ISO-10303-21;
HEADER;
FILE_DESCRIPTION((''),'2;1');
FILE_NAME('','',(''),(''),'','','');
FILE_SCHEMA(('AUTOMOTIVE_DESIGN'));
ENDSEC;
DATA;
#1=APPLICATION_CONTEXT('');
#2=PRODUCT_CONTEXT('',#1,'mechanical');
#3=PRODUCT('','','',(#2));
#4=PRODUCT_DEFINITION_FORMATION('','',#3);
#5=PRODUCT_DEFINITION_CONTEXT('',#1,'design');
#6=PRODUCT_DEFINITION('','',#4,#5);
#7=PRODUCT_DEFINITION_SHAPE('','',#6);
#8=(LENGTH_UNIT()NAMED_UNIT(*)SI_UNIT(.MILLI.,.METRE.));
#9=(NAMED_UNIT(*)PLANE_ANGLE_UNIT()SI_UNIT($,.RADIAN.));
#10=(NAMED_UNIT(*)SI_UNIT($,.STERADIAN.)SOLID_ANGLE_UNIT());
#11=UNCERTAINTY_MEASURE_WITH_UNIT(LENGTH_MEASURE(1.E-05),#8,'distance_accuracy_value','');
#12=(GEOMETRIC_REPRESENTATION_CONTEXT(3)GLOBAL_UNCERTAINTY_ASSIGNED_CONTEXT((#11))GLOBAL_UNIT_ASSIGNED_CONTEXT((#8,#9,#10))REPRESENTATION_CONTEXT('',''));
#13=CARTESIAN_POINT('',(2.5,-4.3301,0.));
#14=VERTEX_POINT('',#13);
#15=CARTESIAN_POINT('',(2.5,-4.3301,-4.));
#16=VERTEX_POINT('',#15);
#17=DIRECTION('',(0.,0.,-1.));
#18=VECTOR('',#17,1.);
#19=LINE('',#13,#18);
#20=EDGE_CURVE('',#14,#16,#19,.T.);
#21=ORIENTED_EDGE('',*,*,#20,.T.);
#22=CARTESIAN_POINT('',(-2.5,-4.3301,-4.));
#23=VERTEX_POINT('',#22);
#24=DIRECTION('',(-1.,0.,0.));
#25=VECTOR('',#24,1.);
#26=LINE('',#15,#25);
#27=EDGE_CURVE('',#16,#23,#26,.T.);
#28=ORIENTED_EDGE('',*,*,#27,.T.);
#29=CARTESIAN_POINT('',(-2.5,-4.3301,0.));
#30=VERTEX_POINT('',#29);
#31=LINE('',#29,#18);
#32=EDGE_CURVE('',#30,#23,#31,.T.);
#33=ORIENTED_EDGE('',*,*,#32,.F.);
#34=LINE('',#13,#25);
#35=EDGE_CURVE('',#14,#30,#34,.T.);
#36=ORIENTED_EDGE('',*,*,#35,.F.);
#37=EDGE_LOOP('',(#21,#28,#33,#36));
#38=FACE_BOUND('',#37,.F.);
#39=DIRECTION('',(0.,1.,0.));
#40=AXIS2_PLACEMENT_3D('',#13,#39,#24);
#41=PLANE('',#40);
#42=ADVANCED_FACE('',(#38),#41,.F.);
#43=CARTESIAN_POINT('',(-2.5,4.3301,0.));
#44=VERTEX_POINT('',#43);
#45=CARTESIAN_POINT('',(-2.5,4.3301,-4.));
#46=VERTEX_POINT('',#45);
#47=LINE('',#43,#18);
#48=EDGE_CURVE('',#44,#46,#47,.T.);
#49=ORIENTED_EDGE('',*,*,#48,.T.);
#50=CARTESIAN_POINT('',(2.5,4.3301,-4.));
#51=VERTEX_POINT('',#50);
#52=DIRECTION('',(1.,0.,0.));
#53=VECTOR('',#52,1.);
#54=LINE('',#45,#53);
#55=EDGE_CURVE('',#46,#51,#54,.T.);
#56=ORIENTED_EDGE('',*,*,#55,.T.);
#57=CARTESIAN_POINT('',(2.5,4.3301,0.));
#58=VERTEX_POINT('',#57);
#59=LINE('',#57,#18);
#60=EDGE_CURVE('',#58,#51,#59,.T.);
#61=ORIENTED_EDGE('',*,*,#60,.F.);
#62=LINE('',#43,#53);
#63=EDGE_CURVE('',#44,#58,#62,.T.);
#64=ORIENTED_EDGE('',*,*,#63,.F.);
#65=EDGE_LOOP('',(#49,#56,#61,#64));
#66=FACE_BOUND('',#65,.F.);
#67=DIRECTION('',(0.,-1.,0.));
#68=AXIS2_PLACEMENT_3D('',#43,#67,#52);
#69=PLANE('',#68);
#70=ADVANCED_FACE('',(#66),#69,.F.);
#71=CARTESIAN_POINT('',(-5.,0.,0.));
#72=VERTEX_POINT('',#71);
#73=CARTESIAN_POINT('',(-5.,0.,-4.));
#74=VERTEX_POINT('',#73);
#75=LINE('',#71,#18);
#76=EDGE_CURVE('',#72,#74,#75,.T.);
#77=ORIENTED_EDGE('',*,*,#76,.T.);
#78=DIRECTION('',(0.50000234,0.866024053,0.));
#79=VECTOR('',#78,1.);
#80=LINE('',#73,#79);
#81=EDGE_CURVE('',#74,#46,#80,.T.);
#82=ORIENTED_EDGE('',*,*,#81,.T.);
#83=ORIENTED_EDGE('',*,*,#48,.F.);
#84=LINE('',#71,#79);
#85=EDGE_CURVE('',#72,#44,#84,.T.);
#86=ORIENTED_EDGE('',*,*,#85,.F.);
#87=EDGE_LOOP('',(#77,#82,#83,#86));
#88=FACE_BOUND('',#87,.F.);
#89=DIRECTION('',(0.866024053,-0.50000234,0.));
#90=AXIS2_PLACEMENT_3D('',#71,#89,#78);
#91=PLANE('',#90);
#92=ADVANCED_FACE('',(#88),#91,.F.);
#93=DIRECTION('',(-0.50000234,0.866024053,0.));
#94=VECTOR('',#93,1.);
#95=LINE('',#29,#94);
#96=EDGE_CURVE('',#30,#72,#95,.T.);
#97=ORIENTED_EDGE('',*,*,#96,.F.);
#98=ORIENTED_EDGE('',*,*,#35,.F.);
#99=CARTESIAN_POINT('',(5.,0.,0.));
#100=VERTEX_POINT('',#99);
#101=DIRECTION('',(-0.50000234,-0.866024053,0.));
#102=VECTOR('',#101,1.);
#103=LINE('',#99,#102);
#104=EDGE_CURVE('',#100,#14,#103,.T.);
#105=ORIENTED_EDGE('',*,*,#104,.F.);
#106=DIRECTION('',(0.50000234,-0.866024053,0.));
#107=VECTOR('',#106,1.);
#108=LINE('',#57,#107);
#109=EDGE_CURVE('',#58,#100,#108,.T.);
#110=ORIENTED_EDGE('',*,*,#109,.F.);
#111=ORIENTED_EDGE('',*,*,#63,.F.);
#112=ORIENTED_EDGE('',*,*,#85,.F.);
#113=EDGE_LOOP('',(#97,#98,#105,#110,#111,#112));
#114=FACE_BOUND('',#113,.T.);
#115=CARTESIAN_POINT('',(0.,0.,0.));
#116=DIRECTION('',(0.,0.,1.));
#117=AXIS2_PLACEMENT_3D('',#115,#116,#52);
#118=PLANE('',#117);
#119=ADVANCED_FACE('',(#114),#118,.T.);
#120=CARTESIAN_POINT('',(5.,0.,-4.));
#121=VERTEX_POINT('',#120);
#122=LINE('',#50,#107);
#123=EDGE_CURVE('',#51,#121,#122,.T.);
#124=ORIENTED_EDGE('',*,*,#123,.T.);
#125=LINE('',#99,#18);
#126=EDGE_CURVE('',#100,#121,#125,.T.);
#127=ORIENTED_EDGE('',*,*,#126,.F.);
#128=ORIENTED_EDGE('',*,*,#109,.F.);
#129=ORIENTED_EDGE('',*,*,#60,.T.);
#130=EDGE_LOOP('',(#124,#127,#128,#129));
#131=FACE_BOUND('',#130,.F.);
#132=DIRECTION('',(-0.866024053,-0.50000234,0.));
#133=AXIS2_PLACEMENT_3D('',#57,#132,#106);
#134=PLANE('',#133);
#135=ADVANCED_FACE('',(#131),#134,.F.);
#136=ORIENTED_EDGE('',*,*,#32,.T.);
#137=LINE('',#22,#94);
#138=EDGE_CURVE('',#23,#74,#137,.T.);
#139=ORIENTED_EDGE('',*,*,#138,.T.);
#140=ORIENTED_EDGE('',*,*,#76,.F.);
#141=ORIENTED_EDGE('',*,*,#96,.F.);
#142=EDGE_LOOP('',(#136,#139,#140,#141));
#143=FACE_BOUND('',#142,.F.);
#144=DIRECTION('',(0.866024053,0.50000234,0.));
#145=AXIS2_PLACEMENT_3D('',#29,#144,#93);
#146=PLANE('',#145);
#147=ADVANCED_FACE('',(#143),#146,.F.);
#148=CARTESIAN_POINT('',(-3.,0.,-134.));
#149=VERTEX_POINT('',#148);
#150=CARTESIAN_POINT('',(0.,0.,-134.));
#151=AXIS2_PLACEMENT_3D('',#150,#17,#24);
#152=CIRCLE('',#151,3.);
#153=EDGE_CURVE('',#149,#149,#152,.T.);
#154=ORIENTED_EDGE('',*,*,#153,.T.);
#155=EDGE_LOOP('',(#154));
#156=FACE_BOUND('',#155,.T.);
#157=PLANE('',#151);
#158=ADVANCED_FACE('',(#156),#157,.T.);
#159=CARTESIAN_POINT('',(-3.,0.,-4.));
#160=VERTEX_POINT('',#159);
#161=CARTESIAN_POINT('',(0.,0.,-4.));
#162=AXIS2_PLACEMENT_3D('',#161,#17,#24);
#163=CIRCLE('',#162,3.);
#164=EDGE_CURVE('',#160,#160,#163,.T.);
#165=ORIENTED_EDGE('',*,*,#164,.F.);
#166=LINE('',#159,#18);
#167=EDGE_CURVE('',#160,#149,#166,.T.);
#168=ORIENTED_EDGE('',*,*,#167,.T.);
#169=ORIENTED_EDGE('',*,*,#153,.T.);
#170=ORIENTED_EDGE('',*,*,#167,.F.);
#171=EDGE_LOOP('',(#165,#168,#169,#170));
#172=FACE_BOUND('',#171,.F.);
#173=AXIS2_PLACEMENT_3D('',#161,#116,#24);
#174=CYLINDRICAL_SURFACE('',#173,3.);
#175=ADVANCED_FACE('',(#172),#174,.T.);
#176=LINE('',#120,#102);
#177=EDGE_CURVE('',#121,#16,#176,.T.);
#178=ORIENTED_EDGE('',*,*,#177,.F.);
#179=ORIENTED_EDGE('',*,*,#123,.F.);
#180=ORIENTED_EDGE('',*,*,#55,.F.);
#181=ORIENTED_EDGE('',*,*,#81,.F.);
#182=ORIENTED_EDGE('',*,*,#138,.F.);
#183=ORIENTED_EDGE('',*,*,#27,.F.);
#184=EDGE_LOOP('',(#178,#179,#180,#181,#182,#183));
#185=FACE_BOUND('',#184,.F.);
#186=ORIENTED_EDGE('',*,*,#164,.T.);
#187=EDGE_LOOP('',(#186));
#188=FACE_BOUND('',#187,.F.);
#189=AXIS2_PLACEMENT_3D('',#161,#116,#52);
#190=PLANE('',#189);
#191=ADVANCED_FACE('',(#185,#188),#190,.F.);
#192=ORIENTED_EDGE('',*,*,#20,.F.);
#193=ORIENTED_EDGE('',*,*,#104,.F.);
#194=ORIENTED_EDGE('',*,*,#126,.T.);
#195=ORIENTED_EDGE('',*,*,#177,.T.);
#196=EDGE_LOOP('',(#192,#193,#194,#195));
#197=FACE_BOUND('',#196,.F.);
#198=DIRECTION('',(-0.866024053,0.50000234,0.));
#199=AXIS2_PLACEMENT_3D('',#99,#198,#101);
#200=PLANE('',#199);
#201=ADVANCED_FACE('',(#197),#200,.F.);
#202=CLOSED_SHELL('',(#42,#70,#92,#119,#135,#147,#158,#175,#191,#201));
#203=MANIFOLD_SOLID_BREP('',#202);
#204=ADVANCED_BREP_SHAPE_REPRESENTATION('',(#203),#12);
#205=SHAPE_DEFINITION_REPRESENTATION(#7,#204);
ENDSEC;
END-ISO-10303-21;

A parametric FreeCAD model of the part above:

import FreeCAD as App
import Part
import Sketcher

V = App.Vector

doc = App.newDocument("Part")
body = doc.addObject("PartDesign::Body", "Body")

# Sketch on XY plane
sketch1 = doc.addObject("Sketcher::SketchObject", "Sketch")
body.addObject(sketch1)
sketch1.AttachmentSupport = (doc.XY_Plane, [""])
sketch1.MapMode = "FlatFace"
sketch1.addGeometry([
    Part.LineSegment(V(2.5, -4.3301, 0), V(5, 0, 0)),  # 0
    Part.LineSegment(V(5, 0, 0), V(2.5, 4.3301, 0)),  # 1
    Part.LineSegment(V(2.5, 4.3301, 0), V(-2.5, 4.3301, 0)),  # 2
    Part.LineSegment(V(-2.5, 4.3301, 0), V(-5, 0, 0)),  # 3
    Part.LineSegment(V(-5, 0, 0), V(-2.5, -4.3301, 0)),  # 4
    Part.LineSegment(V(-2.5, -4.3301, 0), V(2.5, -4.3301, 0)),  # 5
], False)
sketch1.addConstraint([
    Sketcher.Constraint("Coincident", 0, 2, 1, 1),
    Sketcher.Constraint("Coincident", 1, 2, 2, 1),
    Sketcher.Constraint("Coincident", 2, 2, 3, 1),
    Sketcher.Constraint("Coincident", 3, 2, 4, 1),
    Sketcher.Constraint("Coincident", 4, 2, 5, 1),
    Sketcher.Constraint("Coincident", 5, 2, 0, 1),
    Sketcher.Constraint("Horizontal", 2),
    Sketcher.Constraint("Horizontal", 5),
    Sketcher.Constraint("Symmetric", 0, 2, 3, 2, -1, 1),
    Sketcher.Constraint("Symmetric", 1, 2, 4, 2, -1, 1),
    Sketcher.Constraint("PointOnObject", 0, 2, -1),
    Sketcher.Constraint("Parallel", 0, 3),
    Sketcher.Constraint("Vertical", 2, 2, 4, 2),
    Sketcher.Constraint("DistanceX", 2, 2, 2, 1, 5.0),
    Sketcher.Constraint("Distance", 0, 5.0),
    Sketcher.Constraint("DistanceX", -1, 1, 0, 2, 5.0),
])
pad1 = doc.addObject("PartDesign::Pad", "Pad")
body.addObject(pad1)
pad1.Profile = sketch1
pad1.Length = 4
pad1.Reversed = True

# Sketch on XY plane
sketch2 = doc.addObject("Sketcher::SketchObject", "Sketch001")
body.addObject(sketch2)
sketch2.AttachmentSupport = (doc.XY_Plane, [""])
sketch2.MapMode = "FlatFace"
sketch2.AttachmentOffset = App.Placement(V(0, 0, -4), App.Rotation())
sketch2.addGeometry(Part.Circle(V(0, 0, 0), V(0, 0, 1), 3), False)
sketch2.addConstraint([
    Sketcher.Constraint("Coincident", 0, 3, -1, 1),
    Sketcher.Constraint("Diameter", 0, 6.0),
])
pad2 = doc.addObject("PartDesign::Pad", "Pad001")
body.addObject(pad2)
pad2.Profile = sketch2
pad2.Length = 130
pad2.Reversed = True

doc.recompute()
